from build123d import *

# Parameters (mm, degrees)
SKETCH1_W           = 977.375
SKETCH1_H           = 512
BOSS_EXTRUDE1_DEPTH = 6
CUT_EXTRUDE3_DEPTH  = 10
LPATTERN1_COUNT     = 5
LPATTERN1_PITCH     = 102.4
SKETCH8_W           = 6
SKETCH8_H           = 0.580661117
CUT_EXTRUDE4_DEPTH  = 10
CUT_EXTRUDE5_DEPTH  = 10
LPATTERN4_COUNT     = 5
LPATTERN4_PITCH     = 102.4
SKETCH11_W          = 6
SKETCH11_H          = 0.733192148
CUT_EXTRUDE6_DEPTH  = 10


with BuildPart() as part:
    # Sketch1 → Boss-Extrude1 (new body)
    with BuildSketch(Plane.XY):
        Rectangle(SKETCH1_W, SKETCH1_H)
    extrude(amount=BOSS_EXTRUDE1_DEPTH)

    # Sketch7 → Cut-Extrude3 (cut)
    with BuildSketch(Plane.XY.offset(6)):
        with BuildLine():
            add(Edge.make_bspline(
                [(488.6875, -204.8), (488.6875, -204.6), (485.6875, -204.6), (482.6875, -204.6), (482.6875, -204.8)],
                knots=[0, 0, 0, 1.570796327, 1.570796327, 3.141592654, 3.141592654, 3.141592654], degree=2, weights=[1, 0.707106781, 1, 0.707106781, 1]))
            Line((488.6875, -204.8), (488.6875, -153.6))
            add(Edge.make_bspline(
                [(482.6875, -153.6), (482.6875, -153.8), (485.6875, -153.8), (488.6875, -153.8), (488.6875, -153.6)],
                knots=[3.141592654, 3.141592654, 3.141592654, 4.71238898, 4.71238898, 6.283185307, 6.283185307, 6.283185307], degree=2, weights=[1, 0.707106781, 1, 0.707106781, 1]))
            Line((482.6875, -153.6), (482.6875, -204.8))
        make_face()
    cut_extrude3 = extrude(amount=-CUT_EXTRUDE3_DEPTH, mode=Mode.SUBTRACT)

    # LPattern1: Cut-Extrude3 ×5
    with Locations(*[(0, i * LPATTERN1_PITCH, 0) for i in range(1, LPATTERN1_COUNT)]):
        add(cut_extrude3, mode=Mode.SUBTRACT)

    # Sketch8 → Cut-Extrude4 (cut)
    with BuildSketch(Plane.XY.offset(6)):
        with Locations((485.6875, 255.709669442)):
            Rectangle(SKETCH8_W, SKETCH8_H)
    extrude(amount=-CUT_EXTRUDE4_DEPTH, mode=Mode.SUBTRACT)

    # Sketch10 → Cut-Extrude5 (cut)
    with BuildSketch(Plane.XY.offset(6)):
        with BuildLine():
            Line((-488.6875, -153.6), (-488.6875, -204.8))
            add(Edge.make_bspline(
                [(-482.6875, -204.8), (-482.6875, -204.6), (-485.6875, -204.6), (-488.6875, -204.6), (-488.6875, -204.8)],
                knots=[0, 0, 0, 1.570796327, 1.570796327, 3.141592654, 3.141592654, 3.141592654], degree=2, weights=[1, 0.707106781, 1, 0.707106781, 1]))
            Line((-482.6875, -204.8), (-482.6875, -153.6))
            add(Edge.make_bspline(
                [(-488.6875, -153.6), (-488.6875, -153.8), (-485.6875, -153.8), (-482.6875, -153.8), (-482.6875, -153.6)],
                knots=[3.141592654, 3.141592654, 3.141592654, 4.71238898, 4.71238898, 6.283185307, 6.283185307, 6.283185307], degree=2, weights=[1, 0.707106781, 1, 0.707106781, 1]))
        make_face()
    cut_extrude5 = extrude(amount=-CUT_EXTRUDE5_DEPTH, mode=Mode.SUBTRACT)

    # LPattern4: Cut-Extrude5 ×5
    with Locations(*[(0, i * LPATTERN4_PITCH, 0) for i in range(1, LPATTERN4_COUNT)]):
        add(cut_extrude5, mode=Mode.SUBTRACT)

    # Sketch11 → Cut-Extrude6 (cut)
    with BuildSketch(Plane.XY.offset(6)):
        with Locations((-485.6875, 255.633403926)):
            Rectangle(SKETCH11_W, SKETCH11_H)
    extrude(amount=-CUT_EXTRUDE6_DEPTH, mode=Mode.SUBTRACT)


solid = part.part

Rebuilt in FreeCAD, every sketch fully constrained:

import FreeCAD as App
import Part
import Sketcher

V = App.Vector

doc = App.newDocument("Part")
body = doc.addObject("PartDesign::Body", "Body")
body.AllowCompound = True

sketch1 = doc.addObject("Sketcher::SketchObject", "Sketch")
body.addObject(sketch1)
sketch1.AttachmentSupport = (doc.XY_Plane, [""])
sketch1.MapMode = "FlatFace"
sketch1.addGeometry([
    Part.LineSegment(V(-489, 256, 0), V(-489, -256, 0)),
    Part.LineSegment(V(-489, -256, 0), V(489, -256, 0)),
    Part.LineSegment(V(489, -256, 0), V(489, 256, 0)),
    Part.LineSegment(V(489, 256, 0), V(-489, 256, 0)),
], False)
sketch1.addConstraint([
    Sketcher.Constraint("Coincident", 0, 2, 1, 1),
    Sketcher.Constraint("Coincident", 1, 2, 2, 1),
    Sketcher.Constraint("Coincident", 2, 2, 3, 1),
    Sketcher.Constraint("Coincident", 3, 2, 0, 1),
    Sketcher.Constraint("Vertical", 0),
    Sketcher.Constraint("Horizontal", 1),
    Sketcher.Constraint("Vertical", 2),
    Sketcher.Constraint("Horizontal", 3),
    Sketcher.Constraint("Symmetric", 0, 2, 2, 2, -1, 1),
    Sketcher.Constraint("DistanceY", 0, 2, 0, 1, 512.0),
    Sketcher.Constraint("DistanceX", 1, 1, 1, 2, 977.375),
])
pad1 = doc.addObject("PartDesign::Pad", "Pad")
body.addObject(pad1)
pad1.Profile = sketch1
pad1.Length = 6

sketch2 = doc.addObject("Sketcher::SketchObject", "Sketch001")
body.addObject(sketch2)
sketch2.AttachmentSupport = (doc.XY_Plane, [""])
sketch2.MapMode = "FlatFace"
sketch2.AttachmentOffset = App.Placement(V(0, 0, 6), App.Rotation())
sketch2.addGeometry([
    Part.BSplineCurve([V(488.6875, -204.8, 0), V(488.6875, -204.6, 0), V(485.6875, -204.6, 0), V(482.6875, -204.6, 0), V(482.6875, -204.8, 0)], [3, 2, 3], [0, 1.570796327, 3.141592654], False, 2, [1, 0.707106781, 1, 0.707106781, 1], False),
    Part.LineSegment(V(488.6875, -204.8, 0), V(488.6875, -153.6, 0)),
    Part.BSplineCurve([V(482.6875, -153.6, 0), V(482.6875, -153.8, 0), V(485.6875, -153.8, 0), V(488.6875, -153.8, 0), V(488.6875, -153.6, 0)], [3, 2, 3], [3.141592654, 4.71238898, 6.283185307], False, 2, [1, 0.707106781, 1, 0.707106781, 1], False),
    Part.LineSegment(V(482.6875, -153.6, 0), V(482.6875, -204.8, 0)),
], False)
sketch2.addConstraint([
    Sketcher.Constraint("Block", 0),
    Sketcher.Constraint("Block", 2),
    Sketcher.Constraint("Coincident", 0, 1, 1, 1),
    Sketcher.Constraint("Coincident", 1, 2, 2, 2),
    Sketcher.Constraint("Coincident", 2, 1, 3, 1),
    Sketcher.Constraint("Coincident", 3, 2, 0, 2),
])
pocket1 = doc.addObject("PartDesign::Pocket", "Pocket")
body.addObject(pocket1)
pocket1.Profile = sketch2
pocket1.Length = 10
doc.recompute()

linearpattern = doc.addObject("PartDesign::LinearPattern", "LinearPattern")
body.addObject(linearpattern)
linearpattern.Originals = [pocket1]
linearpattern.Direction = (doc.Y_Axis, [""])
linearpattern.Mode = "offset"
linearpattern.Offset = 102.4
linearpattern.Occurrences = 5
body.Tip = linearpattern

sketch3 = doc.addObject("Sketcher::SketchObject", "Sketch002")
body.addObject(sketch3)
sketch3.AttachmentSupport = (doc.XY_Plane, [""])
sketch3.MapMode = "FlatFace"
sketch3.AttachmentOffset = App.Placement(V(0, 0, 6), App.Rotation())
sketch3.addGeometry([
    Part.LineSegment(V(482.7, 256, 0), V(482.7, 255.4, 0)),
    Part.LineSegment(V(482.7, 255.4, 0), V(488.7, 255.4, 0)),
    Part.LineSegment(V(488.7, 255.4, 0), V(488.7, 256, 0)),
    Part.LineSegment(V(488.7, 256, 0), V(482.7, 256, 0)),
], False)
sketch3.addConstraint([
    Sketcher.Constraint("Coincident", 0, 2, 1, 1),
    Sketcher.Constraint("Coincident", 1, 2, 2, 1),
    Sketcher.Constraint("Coincident", 2, 2, 3, 1),
    Sketcher.Constraint("Coincident", 3, 2, 0, 1),
    Sketcher.Constraint("Vertical", 0),
    Sketcher.Constraint("Horizontal", 1),
    Sketcher.Constraint("Vertical", 2),
    Sketcher.Constraint("Horizontal", 3),
    Sketcher.Constraint("DistanceX", 1, 1, 1, 2, 6.0),
    Sketcher.Constraint("DistanceY", -1, 1, 2, 2, 256.0),
    Sketcher.Constraint("DistanceY", 0, 2, 0, 1, 0.580661),
    Sketcher.Constraint("DistanceX", -1, 1, 0, 2, 482.6875),
])
pocket2 = doc.addObject("PartDesign::Pocket", "Pocket001")
body.addObject(pocket2)
pocket2.Profile = sketch3
pocket2.Length = 10

sketch4 = doc.addObject("Sketcher::SketchObject", "Sketch003")
body.addObject(sketch4)
sketch4.AttachmentSupport = (doc.XY_Plane, [""])
sketch4.MapMode = "FlatFace"
sketch4.AttachmentOffset = App.Placement(V(0, 0, 6), App.Rotation())
sketch4.addGeometry([
    Part.LineSegment(V(-488.6875, -153.6, 0), V(-488.6875, -204.8, 0)),
    Part.BSplineCurve([V(-482.6875, -204.8, 0), V(-482.6875, -204.6, 0), V(-485.6875, -204.6, 0), V(-488.6875, -204.6, 0), V(-488.6875, -204.8, 0)], [3, 2, 3], [0, 1.570796327, 3.141592654], False, 2, [1, 0.707106781, 1, 0.707106781, 1], False),
    Part.LineSegment(V(-482.6875, -204.8, 0), V(-482.6875, -153.6, 0)),
    Part.BSplineCurve([V(-488.6875, -153.6, 0), V(-488.6875, -153.8, 0), V(-485.6875, -153.8, 0), V(-482.6875, -153.8, 0), V(-482.6875, -153.6, 0)], [3, 2, 3], [3.141592654, 4.71238898, 6.283185307], False, 2, [1, 0.707106781, 1, 0.707106781, 1], False),
], False)
sketch4.addConstraint([
    Sketcher.Constraint("Block", 1),
    Sketcher.Constraint("Block", 3),
    Sketcher.Constraint("Coincident", 0, 2, 1, 2),
    Sketcher.Constraint("Coincident", 1, 1, 2, 1),
    Sketcher.Constraint("Coincident", 2, 2, 3, 2),
    Sketcher.Constraint("Coincident", 3, 1, 0, 1),
])
pocket3 = doc.addObject("PartDesign::Pocket", "Pocket002")
body.addObject(pocket3)
pocket3.Profile = sketch4
pocket3.Length = 10
doc.recompute()

linearpattern2 = doc.addObject("PartDesign::LinearPattern", "LinearPattern001")
body.addObject(linearpattern2)
linearpattern2.Originals = [pocket3]
linearpattern2.Direction = (doc.Y_Axis, [""])
linearpattern2.Mode = "offset"
linearpattern2.Offset = 102.4
linearpattern2.Occurrences = 5
body.Tip = linearpattern2

sketch5 = doc.addObject("Sketcher::SketchObject", "Sketch004")
body.addObject(sketch5)
sketch5.AttachmentSupport = (doc.XY_Plane, [""])
sketch5.MapMode = "FlatFace"
sketch5.AttachmentOffset = App.Placement(V(0, 0, 6), App.Rotation())
sketch5.addGeometry([
    Part.LineSegment(V(-488.7, 256, 0), V(-488.7, 255.3, 0)),
    Part.LineSegment(V(-488.7, 255.3, 0), V(-482.7, 255.3, 0)),
    Part.LineSegment(V(-482.7, 255.3, 0), V(-482.7, 256, 0)),
    Part.LineSegment(V(-482.7, 256, 0), V(-488.7, 256, 0)),
], False)
sketch5.addConstraint([
    Sketcher.Constraint("Coincident", 0, 2, 1, 1),
    Sketcher.Constraint("Coincident", 1, 2, 2, 1),
    Sketcher.Constraint("Coincident", 2, 2, 3, 1),
    Sketcher.Constraint("Coincident", 3, 2, 0, 1),
    Sketcher.Constraint("Vertical", 0),
    Sketcher.Constraint("Horizontal", 1),
    Sketcher.Constraint("Vertical", 2),
    Sketcher.Constraint("Horizontal", 3),
    Sketcher.Constraint("DistanceX", 1, 1, 1, 2, 6.0),
    Sketcher.Constraint("DistanceY", -1, 1, 2, 2, 256.0),
    Sketcher.Constraint("DistanceX", 0, 2, -1, 1, 488.6875),
    Sketcher.Constraint("DistanceY", 0, 2, 0, 1, 0.733192),
])
pocket4 = doc.addObject("PartDesign::Pocket", "Pocket003")
body.addObject(pocket4)
pocket4.Profile = sketch5
pocket4.Length = 10

doc.recompute()
